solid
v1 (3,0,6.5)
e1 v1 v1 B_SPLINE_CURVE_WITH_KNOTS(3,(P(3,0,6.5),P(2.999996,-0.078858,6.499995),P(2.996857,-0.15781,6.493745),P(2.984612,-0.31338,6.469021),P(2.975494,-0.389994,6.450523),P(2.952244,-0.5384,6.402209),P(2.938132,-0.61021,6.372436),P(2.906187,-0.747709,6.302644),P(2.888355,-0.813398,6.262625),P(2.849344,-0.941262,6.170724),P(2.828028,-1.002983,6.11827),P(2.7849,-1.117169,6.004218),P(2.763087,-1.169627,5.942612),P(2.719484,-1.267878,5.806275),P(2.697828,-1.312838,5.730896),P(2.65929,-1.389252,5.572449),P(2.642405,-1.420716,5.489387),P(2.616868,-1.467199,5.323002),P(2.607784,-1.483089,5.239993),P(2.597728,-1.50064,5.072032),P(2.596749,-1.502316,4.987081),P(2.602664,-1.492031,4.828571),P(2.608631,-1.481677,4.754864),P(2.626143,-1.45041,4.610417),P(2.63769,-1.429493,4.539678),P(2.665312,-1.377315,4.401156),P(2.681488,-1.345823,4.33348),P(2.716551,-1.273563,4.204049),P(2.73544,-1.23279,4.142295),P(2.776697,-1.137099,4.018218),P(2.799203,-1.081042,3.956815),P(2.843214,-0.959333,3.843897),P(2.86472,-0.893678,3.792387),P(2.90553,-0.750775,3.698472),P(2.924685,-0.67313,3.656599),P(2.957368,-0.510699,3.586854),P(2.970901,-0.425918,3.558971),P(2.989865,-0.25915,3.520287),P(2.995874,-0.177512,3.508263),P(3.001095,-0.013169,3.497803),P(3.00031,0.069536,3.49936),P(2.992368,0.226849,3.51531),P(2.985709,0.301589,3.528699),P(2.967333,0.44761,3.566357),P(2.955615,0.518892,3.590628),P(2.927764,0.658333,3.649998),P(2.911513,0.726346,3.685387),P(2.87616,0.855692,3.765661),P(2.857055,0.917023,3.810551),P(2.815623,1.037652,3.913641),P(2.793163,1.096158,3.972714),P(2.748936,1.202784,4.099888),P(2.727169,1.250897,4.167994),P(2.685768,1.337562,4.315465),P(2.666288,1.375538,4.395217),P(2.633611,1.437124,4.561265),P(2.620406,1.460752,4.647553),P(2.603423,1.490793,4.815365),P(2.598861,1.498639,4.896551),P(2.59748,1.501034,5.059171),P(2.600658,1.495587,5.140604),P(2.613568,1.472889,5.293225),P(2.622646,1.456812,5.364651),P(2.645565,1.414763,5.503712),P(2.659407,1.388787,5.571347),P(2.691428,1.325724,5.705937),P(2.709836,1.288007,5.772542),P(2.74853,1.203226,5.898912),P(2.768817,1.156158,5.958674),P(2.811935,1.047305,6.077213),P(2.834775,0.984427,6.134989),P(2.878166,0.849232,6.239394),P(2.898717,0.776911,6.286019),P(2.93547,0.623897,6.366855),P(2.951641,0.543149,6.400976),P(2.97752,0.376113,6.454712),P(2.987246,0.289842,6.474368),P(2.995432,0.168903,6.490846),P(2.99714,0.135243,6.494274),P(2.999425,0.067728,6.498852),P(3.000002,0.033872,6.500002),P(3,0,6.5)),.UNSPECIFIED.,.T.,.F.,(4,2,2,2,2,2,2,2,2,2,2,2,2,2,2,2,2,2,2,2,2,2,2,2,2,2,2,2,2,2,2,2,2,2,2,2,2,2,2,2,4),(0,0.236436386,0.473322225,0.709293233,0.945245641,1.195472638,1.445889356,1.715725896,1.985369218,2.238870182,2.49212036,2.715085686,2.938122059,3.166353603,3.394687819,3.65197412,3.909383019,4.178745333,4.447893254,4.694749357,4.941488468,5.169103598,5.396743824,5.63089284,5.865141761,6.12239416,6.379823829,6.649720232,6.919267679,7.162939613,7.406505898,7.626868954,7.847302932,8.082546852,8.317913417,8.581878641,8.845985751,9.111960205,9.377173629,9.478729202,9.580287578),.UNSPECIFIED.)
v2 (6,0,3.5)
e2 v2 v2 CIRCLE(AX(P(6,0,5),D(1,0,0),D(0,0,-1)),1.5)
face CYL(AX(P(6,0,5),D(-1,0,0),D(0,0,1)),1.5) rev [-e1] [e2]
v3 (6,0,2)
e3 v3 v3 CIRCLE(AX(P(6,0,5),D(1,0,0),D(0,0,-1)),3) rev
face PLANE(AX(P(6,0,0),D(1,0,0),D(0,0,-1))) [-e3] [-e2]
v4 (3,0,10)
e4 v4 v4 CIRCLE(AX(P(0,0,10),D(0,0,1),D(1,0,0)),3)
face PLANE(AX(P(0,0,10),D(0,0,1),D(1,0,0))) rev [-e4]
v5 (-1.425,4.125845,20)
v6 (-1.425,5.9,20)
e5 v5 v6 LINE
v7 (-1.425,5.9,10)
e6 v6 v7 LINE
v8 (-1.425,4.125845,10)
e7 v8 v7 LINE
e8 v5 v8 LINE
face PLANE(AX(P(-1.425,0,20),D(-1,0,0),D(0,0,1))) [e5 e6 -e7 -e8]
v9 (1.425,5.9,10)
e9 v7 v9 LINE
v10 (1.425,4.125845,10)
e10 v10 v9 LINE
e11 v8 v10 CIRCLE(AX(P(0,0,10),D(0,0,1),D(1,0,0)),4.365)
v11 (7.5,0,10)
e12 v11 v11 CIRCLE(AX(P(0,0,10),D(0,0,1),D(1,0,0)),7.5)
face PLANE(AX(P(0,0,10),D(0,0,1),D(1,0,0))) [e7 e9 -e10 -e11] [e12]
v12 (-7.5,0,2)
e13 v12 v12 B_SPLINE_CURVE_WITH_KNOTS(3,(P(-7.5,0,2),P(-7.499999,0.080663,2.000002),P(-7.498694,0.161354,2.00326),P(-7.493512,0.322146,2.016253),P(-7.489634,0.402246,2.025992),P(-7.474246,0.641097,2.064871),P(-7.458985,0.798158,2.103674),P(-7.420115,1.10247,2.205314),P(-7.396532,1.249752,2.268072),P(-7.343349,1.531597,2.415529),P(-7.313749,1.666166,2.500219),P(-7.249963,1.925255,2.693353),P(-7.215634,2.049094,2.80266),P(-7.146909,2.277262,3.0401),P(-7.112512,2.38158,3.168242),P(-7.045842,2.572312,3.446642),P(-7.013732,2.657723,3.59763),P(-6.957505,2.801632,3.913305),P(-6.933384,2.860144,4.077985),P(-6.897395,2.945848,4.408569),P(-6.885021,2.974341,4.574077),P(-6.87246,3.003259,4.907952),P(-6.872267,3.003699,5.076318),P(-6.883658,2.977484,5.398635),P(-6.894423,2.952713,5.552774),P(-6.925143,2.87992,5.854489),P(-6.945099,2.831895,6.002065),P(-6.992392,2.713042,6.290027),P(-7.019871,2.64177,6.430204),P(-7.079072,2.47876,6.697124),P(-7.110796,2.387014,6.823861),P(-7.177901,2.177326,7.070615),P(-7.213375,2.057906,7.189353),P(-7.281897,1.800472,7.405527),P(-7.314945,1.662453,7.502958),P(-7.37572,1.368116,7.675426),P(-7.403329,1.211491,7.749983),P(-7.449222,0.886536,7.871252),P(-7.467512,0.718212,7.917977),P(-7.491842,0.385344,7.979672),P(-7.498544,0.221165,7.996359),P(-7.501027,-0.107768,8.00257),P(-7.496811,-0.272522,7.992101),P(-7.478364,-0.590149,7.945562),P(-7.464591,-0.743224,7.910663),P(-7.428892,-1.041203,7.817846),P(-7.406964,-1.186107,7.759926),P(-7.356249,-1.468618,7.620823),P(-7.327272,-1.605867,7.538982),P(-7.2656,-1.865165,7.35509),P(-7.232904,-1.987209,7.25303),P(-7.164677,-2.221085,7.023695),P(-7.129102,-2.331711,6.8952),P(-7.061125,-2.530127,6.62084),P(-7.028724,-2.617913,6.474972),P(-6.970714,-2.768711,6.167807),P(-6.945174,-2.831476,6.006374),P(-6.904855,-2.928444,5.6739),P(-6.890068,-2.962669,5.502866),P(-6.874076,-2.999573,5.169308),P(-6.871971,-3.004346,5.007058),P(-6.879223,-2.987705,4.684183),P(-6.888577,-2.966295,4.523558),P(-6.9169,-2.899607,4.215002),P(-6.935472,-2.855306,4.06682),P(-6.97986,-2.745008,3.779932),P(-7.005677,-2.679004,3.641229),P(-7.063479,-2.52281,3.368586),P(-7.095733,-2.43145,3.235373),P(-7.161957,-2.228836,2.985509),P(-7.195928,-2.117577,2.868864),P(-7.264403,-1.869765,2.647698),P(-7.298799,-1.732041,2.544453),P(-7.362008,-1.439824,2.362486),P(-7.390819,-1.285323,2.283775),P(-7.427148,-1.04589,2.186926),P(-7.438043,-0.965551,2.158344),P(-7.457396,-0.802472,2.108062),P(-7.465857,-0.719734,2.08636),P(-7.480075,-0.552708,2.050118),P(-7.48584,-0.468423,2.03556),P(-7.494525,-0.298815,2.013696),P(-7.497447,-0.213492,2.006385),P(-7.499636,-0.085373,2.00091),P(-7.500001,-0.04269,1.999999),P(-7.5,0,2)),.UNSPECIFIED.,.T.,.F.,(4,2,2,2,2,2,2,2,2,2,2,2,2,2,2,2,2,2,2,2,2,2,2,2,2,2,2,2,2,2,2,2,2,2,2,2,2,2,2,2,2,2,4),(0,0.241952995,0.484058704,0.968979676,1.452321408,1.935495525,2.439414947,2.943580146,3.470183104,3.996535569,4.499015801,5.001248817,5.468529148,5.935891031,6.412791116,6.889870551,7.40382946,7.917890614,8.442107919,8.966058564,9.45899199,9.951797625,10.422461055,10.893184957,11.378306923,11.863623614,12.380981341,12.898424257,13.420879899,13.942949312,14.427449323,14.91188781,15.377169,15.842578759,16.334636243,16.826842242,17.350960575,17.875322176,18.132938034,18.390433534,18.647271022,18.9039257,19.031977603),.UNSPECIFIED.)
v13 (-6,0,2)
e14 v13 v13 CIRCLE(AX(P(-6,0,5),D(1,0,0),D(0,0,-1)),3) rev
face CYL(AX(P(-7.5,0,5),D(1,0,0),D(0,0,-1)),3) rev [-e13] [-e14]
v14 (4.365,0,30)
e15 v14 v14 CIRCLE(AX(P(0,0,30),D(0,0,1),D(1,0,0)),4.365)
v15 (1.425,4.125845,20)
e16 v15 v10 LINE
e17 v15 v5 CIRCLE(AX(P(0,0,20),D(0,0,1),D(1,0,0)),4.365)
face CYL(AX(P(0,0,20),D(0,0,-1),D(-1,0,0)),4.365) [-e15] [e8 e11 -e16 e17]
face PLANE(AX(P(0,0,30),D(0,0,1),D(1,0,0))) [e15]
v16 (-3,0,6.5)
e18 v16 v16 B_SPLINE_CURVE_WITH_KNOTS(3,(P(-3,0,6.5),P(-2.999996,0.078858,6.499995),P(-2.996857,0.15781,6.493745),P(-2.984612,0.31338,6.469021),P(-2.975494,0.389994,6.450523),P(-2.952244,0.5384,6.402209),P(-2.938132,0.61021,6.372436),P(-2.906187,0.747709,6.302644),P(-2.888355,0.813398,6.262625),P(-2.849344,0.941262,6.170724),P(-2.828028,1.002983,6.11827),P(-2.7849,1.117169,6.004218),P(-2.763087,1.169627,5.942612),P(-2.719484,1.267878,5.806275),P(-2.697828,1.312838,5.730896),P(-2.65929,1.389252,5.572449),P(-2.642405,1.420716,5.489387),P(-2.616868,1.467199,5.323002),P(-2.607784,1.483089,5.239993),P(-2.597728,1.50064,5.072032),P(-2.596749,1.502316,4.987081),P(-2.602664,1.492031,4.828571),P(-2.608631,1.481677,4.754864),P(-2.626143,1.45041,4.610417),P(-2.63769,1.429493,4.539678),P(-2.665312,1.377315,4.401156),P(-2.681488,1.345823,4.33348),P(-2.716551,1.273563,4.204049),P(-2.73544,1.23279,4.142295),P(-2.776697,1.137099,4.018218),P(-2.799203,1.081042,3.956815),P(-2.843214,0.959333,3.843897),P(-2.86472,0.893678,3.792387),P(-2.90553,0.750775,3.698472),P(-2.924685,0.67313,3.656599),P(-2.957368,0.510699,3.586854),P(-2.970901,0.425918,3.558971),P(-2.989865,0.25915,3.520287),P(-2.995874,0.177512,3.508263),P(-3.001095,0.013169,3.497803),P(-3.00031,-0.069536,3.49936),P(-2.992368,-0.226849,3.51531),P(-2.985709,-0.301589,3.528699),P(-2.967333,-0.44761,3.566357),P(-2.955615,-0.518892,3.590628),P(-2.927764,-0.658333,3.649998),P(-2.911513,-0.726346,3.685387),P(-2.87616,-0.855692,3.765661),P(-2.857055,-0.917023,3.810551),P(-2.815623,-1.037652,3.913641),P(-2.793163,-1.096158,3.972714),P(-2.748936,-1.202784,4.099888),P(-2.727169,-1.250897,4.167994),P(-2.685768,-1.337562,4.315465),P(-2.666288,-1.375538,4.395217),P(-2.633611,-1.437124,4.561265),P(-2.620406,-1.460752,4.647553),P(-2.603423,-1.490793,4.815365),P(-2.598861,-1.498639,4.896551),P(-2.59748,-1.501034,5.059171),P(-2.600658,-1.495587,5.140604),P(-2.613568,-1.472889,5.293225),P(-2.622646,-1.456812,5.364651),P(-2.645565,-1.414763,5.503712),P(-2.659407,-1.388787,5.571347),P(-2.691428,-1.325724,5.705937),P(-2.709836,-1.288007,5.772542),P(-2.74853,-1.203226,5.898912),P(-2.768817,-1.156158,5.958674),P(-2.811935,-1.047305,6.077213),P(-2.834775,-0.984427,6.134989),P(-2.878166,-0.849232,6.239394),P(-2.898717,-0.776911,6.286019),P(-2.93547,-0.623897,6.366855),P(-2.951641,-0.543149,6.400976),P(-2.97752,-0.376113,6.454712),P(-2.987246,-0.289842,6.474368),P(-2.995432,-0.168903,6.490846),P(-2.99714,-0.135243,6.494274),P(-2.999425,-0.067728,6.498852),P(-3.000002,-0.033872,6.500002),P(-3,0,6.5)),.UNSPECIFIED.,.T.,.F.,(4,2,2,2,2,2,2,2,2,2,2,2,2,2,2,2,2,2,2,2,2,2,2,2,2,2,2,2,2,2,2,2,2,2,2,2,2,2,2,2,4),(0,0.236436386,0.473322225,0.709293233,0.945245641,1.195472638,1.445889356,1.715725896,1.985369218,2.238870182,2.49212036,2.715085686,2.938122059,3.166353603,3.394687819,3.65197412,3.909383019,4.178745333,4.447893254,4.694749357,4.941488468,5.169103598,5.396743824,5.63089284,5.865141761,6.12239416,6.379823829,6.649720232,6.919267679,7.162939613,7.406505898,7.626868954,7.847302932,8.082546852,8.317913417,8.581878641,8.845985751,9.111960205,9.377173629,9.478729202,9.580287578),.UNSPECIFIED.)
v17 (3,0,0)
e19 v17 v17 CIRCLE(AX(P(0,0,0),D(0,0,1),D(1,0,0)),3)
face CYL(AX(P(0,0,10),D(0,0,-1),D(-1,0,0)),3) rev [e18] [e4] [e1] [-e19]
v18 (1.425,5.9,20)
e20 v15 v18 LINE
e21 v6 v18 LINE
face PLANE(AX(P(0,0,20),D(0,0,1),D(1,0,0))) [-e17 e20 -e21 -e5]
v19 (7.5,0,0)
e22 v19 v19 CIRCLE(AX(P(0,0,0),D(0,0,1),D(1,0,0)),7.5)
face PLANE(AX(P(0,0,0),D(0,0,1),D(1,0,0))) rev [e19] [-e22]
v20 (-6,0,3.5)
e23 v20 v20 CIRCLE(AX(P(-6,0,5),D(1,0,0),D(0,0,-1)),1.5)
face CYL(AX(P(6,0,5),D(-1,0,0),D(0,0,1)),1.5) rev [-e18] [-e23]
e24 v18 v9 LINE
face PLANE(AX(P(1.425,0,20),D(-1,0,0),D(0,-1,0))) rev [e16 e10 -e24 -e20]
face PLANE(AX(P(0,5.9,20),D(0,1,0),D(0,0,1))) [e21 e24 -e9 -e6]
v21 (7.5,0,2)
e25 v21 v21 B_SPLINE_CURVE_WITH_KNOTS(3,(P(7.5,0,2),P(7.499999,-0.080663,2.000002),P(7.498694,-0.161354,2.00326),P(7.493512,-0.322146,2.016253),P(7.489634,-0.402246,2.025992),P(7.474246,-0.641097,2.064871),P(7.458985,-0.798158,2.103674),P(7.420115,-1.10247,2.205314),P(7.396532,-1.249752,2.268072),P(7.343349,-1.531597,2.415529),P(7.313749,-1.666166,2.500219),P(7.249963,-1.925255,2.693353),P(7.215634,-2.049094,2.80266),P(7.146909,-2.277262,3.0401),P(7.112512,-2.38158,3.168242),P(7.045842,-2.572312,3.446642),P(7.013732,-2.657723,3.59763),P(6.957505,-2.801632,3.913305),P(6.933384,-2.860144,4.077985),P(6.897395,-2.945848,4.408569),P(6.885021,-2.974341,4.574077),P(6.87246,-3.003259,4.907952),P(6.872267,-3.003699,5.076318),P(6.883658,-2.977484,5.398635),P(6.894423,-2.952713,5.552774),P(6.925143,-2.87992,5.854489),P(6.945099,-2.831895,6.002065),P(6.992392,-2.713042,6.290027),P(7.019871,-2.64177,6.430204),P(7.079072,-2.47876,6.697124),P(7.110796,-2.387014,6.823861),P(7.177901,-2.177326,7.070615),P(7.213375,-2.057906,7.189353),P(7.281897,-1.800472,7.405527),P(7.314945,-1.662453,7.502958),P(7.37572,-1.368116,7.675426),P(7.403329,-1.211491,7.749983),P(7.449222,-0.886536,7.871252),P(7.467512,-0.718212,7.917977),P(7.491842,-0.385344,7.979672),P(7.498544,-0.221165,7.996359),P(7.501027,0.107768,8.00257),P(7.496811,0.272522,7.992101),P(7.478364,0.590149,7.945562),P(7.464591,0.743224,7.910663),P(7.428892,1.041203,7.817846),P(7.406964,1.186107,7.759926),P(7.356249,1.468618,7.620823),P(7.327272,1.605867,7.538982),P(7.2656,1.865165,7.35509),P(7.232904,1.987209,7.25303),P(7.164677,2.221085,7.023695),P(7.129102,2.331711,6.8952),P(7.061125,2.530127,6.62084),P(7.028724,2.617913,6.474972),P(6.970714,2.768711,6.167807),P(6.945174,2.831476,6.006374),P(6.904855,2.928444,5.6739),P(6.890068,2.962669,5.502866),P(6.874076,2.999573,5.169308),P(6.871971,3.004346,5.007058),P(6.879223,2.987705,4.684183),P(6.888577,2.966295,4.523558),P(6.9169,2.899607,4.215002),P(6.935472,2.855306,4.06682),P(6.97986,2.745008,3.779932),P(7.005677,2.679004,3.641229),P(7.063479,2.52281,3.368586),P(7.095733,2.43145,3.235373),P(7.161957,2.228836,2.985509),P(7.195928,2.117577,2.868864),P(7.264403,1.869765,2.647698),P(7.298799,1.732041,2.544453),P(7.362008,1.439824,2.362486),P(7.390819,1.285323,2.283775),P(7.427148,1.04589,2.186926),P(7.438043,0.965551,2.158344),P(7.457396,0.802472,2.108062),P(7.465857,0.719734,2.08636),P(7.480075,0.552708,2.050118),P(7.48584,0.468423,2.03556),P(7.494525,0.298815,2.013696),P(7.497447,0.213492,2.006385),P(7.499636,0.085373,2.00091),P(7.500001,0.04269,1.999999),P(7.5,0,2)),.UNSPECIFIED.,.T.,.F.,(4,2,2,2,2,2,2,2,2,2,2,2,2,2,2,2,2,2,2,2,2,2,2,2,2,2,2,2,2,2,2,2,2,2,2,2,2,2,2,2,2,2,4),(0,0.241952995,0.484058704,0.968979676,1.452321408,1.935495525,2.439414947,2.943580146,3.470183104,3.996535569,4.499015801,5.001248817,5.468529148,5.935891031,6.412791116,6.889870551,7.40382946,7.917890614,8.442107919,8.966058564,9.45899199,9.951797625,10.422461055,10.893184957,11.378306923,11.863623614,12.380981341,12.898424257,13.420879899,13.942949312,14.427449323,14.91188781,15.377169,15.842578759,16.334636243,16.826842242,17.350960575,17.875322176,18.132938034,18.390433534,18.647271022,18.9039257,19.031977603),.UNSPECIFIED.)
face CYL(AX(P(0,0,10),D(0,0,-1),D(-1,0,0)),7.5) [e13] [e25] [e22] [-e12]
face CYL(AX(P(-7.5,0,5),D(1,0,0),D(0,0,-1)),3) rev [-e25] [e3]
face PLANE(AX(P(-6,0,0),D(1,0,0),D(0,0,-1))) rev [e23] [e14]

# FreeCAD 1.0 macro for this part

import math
import FreeCAD as App
import Part
import Sketcher

V = App.Vector
Q = App.Units.Quantity

doc = App.newDocument("Part")
body = doc.addObject("PartDesign::Body", "Body")

sketch1 = body.newObject("Sketcher::SketchObject", "Sketch")
sketch1.AttachmentSupport = (doc.getObject("XY_Plane"), [""])
sketch1.MapMode = "FlatFace"
sketch1.addGeometry(Part.Circle(V(0, 0, 0), V(0, 0, 1), 7.5), False)
sketch1.addGeometry(Part.Circle(V(0, 0, 0), V(0, 0, 1), 3), False)
sketch1.addConstraint(Sketcher.Constraint("Coincident", 0, 3, -1, 1))
sketch1.addConstraint(Sketcher.Constraint("Coincident", 1, 3, -1, 1))
sketch1.addConstraint(Sketcher.Constraint("Diameter", 0, Q("15 mm")))
sketch1.addConstraint(Sketcher.Constraint("Diameter", 1, Q("6 mm")))
pad1 = body.newObject("PartDesign::Pad", "Pad")
pad1.Profile = sketch1
pad1.Length = 10

sketch2 = body.newObject("Sketcher::SketchObject", "Sketch001")
sketch2.AttachmentSupport = (doc.getObject("YZ_Plane"), [""])
sketch2.MapMode = "FlatFace"
sketch2.addGeometry(Part.Circle(V(0, 5, 0), V(0, 0, 1), 3), False)
sketch2.addConstraint(Sketcher.Constraint("PointOnObject", 0, 3, -2))
sketch2.addConstraint(Sketcher.Constraint("Diameter", 0, Q("6 mm")))
sketch2.addConstraint(Sketcher.Constraint("DistanceY", -1, 1, 0, 3, Q("5 mm")))
pocket1 = body.newObject("PartDesign::Pocket", "Pocket")
pocket1.Profile = sketch2
pocket1.Type = "ThroughAll"
pocket1.Midplane = True

sketch3 = body.newObject("Sketcher::SketchObject", "Sketch002")
sketch3.AttachmentSupport = (doc.getObject("YZ_Plane"), [""])
sketch3.MapMode = "FlatFace"
sketch3.addGeometry(Part.Circle(V(0, 5, 0), V(0, 0, 1), 4.12161), False)
sketch3.addGeometry(Part.Circle(V(0, 5, 0), V(0, 0, 1), 1.5), False)
sketch3.addConstraint(Sketcher.Constraint("Coincident", 1, 3, 0, 3))
sketch3.addConstraint(Sketcher.Constraint("PointOnObject", 0, 3, -2))
sketch3.addConstraint(Sketcher.Constraint("Diameter", 1, Q("3 mm")))
sketch3.addConstraint(Sketcher.Constraint("DistanceY", -1, 1, 0, 3, Q("5 mm")))
sketch3.addConstraint(Sketcher.Constraint("Diameter", 0, Q("8.243221 mm")))
pad2 = body.newObject("PartDesign::Pad", "Pad001")
pad2.Profile = sketch3
pad2.Length = 12
pad2.Midplane = True

sketch4 = body.newObject("Sketcher::SketchObject", "Sketch003")
sketch4.AttachmentSupport = (doc.getObject("XY_Plane"), [""])
sketch4.MapMode = "FlatFace"
sketch4.AttachmentOffset = App.Placement(V(0, 0, 10), App.Rotation())
sketch4.addGeometry(Part.LineSegment(V(1.425, 5.9, 0), V(-1.425, 5.9, 0)), False)
sketch4.addGeometry(Part.LineSegment(V(-1.425, 5.9, 0), V(-1.425, 4.125845, 0)), False)
sketch4.addGeometry(Part.ArcOfCircle(Part.Circle(V(0, 0, 0), V(0, 0, 1), 4.365), math.radians(109.054081), math.radians(250.945919)), False)
sketch4.addGeometry(Part.ArcOfCircle(Part.Circle(V(0, 0, 0), V(0, 0, 1), 4.365), math.radians(-109.054081), math.radians(-70.945919)), False)
sketch4.addGeometry(Part.ArcOfCircle(Part.Circle(V(0, 0, 0), V(0, 0, 1), 4.365), math.radians(-70.945919), math.radians(0)), False)
sketch4.addGeometry(Part.ArcOfCircle(Part.Circle(V(0, 0, 0), V(0, 0, 1), 4.365), math.radians(0), math.radians(70.945919)), False)
sketch4.addGeometry(Part.LineSegment(V(1.425, 4.125845, 0), V(1.425, 5.9, 0)), False)
sketch4.addConstraint(Sketcher.Constraint("Coincident", 0, 2, 1, 1))
sketch4.addConstraint(Sketcher.Constraint("Coincident", 1, 2, 2, 1))
sketch4.addConstraint(Sketcher.Constraint("Tangent", 2, 2, 3, 1))
sketch4.addConstraint(Sketcher.Constraint("Tangent", 3, 2, 4, 1))
sketch4.addConstraint(Sketcher.Constraint("Tangent", 4, 2, 5, 1))
sketch4.addConstraint(Sketcher.Constraint("Coincident", 5, 2, 6, 1))
sketch4.addConstraint(Sketcher.Constraint("Coincident", 6, 2, 0, 1))
sketch4.addConstraint(Sketcher.Constraint("Horizontal", 0))
sketch4.addConstraint(Sketcher.Constraint("Vertical", 1))
sketch4.addConstraint(Sketcher.Constraint("Vertical", 6))
sketch4.addConstraint(Sketcher.Constraint("Coincident", 2, 3, -1, 1))
sketch4.addConstraint(Sketcher.Constraint("Coincident", 4, 3, -1, 1))
sketch4.addConstraint(Sketcher.Constraint("Equal", 4, 5))
sketch4.addConstraint(Sketcher.Constraint("PointOnObject", 4, 2, -1))
sketch4.addConstraint(Sketcher.Constraint("Horizontal", 2, 2, 3, 2))
sketch4.addConstraint(Sketcher.Constraint("Horizontal", 1, 2, 5, 2))
sketch4.addConstraint(Sketcher.Constraint("Vertical", 1, 2, 2, 2))
sketch4.addConstraint(Sketcher.Constraint("Radius", 2, Q("4.365 mm")))
sketch4.addConstraint(Sketcher.Constraint("DistanceX", 0, 2, 0, 1, Q("2.85 mm")))
sketch4.addConstraint(Sketcher.Constraint("DistanceY", -1, 1, 0, 2, Q("5.9 mm")))
pad3 = body.newObject("PartDesign::Pad", "Pad002")
pad3.Profile = sketch4
pad3.Length = 10

sketch5 = body.newObject("Sketcher::SketchObject", "Sketch004")
sketch5.AttachmentSupport = (doc.getObject("XY_Plane"), [""])
sketch5.MapMode = "FlatFace"
sketch5.addGeometry(Part.Circle(V(0, 0, 0), V(0, 0, 1), 3), False)
sketch5.addConstraint(Sketcher.Constraint("Coincident", 0, 3, -1, 1))
sketch5.addConstraint(Sketcher.Constraint("Diameter", 0, Q("6 mm")))
pocket2 = body.newObject("PartDesign::Pocket", "Pocket001")
pocket2.Profile = sketch5
pocket2.Length = 10
pocket2.Reversed = True

sketch6 = body.newObject("Sketcher::SketchObject", "Sketch005")
sketch6.AttachmentSupport = (doc.getObject("XY_Plane"), [""])
sketch6.MapMode = "FlatFace"
sketch6.AttachmentOffset = App.Placement(V(0, 0, 20), App.Rotation())
sketch6.addGeometry(Part.Circle(V(0, 0, 0), V(0, 0, 1), 4.365), False)
sketch6.addConstraint(Sketcher.Constraint("Coincident", 0, 3, -1, 1))
sketch6.addConstraint(Sketcher.Constraint("Diameter", 0, Q("8.73 mm")))
pad4 = body.newObject("PartDesign::Pad", "Pad003")
pad4.Profile = sketch6
pad4.Length = 10

doc.recompute()
